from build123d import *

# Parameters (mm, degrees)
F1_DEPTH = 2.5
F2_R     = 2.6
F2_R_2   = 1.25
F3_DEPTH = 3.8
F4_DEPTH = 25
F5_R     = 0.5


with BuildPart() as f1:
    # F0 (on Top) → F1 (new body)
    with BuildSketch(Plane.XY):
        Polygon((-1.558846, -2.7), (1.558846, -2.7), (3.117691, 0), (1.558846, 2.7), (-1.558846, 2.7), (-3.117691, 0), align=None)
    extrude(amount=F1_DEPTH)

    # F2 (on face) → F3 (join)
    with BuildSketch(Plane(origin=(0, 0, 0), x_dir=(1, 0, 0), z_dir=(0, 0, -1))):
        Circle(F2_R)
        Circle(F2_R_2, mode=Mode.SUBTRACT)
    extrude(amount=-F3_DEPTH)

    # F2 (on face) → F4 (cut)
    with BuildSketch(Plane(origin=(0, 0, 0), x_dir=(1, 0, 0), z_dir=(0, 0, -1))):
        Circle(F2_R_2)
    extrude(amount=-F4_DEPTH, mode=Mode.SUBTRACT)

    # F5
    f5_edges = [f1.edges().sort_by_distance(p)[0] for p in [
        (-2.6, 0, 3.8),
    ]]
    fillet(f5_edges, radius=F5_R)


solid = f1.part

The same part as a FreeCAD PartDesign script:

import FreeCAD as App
import Part
import Sketcher
from FreeCAD import Vector
Q = App.Units.Quantity


def edges_at(feature, points):
    """Names of the edges that pass closest to the given points."""
    edges = feature.Shape.Edges
    near = lambda p: min(range(len(edges)), key=lambda i: edges[i].distToShape(Part.Vertex(*p))[0])
    return sorted({f"Edge{near(p) + 1}" for p in points})


def add_polygon(sketch, points):
    """Adds a closed chain of lines whose ends are joined by coincident constraints."""
    first, n = sketch.GeometryCount, len(points)
    for a, b in zip(points, points[1:] + points[:1]):
        sketch.addGeometry(Part.LineSegment(App.Vector(*a, 0), App.Vector(*b, 0)), False)
    for i in range(n):
        sketch.addConstraint(Sketcher.Constraint("Coincident", first + i, 2, first + (i + 1) % n, 1))

doc = App.newDocument("Part")
body = doc.addObject("PartDesign::Body", "Body")

# Sketch on XY plane
sketch1 = doc.addObject("Sketcher::SketchObject", "Sketch")
body.addObject(sketch1)
sketch1.AttachmentSupport = (doc.XY_Plane, [""])
sketch1.MapMode = "FlatFace"
add_polygon(sketch1, [(-1.558846, -2.7), (1.558846, -2.7), (3.117691, 0), (1.558846, 2.7), (-1.558846, 2.7), (-3.117691, 0)])  # lines 0-5
sketch1.addConstraint([
    Sketcher.Constraint("Horizontal", 0),
    Sketcher.Constraint("Horizontal", 3),
    Sketcher.Constraint("Symmetric", 0, 2, 3, 2, -1, 1),
    Sketcher.Constraint("Symmetric", 1, 2, 4, 2, -1, 1),
    Sketcher.Constraint("PointOnObject", 1, 2, -1),
    Sketcher.Constraint("Parallel", 2, 5),
    Sketcher.Constraint("Vertical", 0, 2, 2, 2),
    Sketcher.Constraint("Angle", 1, Q("60.000012 deg")),
    Sketcher.Constraint("DistanceY", 0, 2, -1, 1, 2.7),
    Sketcher.Constraint("DistanceX", 0, 1, 0, 2, 3.117692),
])
pad1 = doc.addObject("PartDesign::Pad", "Pad")
body.addObject(pad1)
pad1.Profile = sketch1
pad1.Length = 2.5

# Sketch on XY plane
sketch2 = doc.addObject("Sketcher::SketchObject", "Sketch001")
body.addObject(sketch2)
sketch2.AttachmentSupport = (doc.XY_Plane, [""])
sketch2.MapMode = "FlatFace"
sketch2.addGeometry([
    Part.Circle(Vector(0, 0, 0), Vector(0, 0, 1), 2.6),
    Part.Circle(Vector(0, 0, 0), Vector(0, 0, 1), 1.25),
], False)
sketch2.addConstraint([
    Sketcher.Constraint("Coincident", 0, 3, -1, 1),
    Sketcher.Constraint("Coincident", 1, 3, -1, 1),
    Sketcher.Constraint("Diameter", 0, 5.2),
    Sketcher.Constraint("Diameter", 1, 2.5),
])
pad2 = doc.addObject("PartDesign::Pad", "Pad001")
body.addObject(pad2)
pad2.Profile = sketch2
pad2.Length = 3.8

# Sketch on XY plane
sketch3 = doc.addObject("Sketcher::SketchObject", "Sketch002")
body.addObject(sketch3)
sketch3.AttachmentSupport = (doc.XY_Plane, [""])
sketch3.MapMode = "FlatFace"
sketch3.addGeometry(Part.Circle(Vector(0, 0, 0), Vector(0, 0, 1), 1.25), False)
sketch3.addConstraint([
    Sketcher.Constraint("Coincident", 0, 3, -1, 1),
    Sketcher.Constraint("Diameter", 0, 2.5),
])
pocket1 = doc.addObject("PartDesign::Pocket", "Pocket")
body.addObject(pocket1)
pocket1.Profile = sketch3
pocket1.Length = 25
pocket1.Reversed = True
doc.recompute()

fillet = doc.addObject("PartDesign::Fillet", "Fillet")
body.addObject(fillet)
fillet.Base = (pocket1, edges_at(pocket1, [(-2.6, 0, 3.8)]))
fillet.Radius = 0.5

doc.recompute()
